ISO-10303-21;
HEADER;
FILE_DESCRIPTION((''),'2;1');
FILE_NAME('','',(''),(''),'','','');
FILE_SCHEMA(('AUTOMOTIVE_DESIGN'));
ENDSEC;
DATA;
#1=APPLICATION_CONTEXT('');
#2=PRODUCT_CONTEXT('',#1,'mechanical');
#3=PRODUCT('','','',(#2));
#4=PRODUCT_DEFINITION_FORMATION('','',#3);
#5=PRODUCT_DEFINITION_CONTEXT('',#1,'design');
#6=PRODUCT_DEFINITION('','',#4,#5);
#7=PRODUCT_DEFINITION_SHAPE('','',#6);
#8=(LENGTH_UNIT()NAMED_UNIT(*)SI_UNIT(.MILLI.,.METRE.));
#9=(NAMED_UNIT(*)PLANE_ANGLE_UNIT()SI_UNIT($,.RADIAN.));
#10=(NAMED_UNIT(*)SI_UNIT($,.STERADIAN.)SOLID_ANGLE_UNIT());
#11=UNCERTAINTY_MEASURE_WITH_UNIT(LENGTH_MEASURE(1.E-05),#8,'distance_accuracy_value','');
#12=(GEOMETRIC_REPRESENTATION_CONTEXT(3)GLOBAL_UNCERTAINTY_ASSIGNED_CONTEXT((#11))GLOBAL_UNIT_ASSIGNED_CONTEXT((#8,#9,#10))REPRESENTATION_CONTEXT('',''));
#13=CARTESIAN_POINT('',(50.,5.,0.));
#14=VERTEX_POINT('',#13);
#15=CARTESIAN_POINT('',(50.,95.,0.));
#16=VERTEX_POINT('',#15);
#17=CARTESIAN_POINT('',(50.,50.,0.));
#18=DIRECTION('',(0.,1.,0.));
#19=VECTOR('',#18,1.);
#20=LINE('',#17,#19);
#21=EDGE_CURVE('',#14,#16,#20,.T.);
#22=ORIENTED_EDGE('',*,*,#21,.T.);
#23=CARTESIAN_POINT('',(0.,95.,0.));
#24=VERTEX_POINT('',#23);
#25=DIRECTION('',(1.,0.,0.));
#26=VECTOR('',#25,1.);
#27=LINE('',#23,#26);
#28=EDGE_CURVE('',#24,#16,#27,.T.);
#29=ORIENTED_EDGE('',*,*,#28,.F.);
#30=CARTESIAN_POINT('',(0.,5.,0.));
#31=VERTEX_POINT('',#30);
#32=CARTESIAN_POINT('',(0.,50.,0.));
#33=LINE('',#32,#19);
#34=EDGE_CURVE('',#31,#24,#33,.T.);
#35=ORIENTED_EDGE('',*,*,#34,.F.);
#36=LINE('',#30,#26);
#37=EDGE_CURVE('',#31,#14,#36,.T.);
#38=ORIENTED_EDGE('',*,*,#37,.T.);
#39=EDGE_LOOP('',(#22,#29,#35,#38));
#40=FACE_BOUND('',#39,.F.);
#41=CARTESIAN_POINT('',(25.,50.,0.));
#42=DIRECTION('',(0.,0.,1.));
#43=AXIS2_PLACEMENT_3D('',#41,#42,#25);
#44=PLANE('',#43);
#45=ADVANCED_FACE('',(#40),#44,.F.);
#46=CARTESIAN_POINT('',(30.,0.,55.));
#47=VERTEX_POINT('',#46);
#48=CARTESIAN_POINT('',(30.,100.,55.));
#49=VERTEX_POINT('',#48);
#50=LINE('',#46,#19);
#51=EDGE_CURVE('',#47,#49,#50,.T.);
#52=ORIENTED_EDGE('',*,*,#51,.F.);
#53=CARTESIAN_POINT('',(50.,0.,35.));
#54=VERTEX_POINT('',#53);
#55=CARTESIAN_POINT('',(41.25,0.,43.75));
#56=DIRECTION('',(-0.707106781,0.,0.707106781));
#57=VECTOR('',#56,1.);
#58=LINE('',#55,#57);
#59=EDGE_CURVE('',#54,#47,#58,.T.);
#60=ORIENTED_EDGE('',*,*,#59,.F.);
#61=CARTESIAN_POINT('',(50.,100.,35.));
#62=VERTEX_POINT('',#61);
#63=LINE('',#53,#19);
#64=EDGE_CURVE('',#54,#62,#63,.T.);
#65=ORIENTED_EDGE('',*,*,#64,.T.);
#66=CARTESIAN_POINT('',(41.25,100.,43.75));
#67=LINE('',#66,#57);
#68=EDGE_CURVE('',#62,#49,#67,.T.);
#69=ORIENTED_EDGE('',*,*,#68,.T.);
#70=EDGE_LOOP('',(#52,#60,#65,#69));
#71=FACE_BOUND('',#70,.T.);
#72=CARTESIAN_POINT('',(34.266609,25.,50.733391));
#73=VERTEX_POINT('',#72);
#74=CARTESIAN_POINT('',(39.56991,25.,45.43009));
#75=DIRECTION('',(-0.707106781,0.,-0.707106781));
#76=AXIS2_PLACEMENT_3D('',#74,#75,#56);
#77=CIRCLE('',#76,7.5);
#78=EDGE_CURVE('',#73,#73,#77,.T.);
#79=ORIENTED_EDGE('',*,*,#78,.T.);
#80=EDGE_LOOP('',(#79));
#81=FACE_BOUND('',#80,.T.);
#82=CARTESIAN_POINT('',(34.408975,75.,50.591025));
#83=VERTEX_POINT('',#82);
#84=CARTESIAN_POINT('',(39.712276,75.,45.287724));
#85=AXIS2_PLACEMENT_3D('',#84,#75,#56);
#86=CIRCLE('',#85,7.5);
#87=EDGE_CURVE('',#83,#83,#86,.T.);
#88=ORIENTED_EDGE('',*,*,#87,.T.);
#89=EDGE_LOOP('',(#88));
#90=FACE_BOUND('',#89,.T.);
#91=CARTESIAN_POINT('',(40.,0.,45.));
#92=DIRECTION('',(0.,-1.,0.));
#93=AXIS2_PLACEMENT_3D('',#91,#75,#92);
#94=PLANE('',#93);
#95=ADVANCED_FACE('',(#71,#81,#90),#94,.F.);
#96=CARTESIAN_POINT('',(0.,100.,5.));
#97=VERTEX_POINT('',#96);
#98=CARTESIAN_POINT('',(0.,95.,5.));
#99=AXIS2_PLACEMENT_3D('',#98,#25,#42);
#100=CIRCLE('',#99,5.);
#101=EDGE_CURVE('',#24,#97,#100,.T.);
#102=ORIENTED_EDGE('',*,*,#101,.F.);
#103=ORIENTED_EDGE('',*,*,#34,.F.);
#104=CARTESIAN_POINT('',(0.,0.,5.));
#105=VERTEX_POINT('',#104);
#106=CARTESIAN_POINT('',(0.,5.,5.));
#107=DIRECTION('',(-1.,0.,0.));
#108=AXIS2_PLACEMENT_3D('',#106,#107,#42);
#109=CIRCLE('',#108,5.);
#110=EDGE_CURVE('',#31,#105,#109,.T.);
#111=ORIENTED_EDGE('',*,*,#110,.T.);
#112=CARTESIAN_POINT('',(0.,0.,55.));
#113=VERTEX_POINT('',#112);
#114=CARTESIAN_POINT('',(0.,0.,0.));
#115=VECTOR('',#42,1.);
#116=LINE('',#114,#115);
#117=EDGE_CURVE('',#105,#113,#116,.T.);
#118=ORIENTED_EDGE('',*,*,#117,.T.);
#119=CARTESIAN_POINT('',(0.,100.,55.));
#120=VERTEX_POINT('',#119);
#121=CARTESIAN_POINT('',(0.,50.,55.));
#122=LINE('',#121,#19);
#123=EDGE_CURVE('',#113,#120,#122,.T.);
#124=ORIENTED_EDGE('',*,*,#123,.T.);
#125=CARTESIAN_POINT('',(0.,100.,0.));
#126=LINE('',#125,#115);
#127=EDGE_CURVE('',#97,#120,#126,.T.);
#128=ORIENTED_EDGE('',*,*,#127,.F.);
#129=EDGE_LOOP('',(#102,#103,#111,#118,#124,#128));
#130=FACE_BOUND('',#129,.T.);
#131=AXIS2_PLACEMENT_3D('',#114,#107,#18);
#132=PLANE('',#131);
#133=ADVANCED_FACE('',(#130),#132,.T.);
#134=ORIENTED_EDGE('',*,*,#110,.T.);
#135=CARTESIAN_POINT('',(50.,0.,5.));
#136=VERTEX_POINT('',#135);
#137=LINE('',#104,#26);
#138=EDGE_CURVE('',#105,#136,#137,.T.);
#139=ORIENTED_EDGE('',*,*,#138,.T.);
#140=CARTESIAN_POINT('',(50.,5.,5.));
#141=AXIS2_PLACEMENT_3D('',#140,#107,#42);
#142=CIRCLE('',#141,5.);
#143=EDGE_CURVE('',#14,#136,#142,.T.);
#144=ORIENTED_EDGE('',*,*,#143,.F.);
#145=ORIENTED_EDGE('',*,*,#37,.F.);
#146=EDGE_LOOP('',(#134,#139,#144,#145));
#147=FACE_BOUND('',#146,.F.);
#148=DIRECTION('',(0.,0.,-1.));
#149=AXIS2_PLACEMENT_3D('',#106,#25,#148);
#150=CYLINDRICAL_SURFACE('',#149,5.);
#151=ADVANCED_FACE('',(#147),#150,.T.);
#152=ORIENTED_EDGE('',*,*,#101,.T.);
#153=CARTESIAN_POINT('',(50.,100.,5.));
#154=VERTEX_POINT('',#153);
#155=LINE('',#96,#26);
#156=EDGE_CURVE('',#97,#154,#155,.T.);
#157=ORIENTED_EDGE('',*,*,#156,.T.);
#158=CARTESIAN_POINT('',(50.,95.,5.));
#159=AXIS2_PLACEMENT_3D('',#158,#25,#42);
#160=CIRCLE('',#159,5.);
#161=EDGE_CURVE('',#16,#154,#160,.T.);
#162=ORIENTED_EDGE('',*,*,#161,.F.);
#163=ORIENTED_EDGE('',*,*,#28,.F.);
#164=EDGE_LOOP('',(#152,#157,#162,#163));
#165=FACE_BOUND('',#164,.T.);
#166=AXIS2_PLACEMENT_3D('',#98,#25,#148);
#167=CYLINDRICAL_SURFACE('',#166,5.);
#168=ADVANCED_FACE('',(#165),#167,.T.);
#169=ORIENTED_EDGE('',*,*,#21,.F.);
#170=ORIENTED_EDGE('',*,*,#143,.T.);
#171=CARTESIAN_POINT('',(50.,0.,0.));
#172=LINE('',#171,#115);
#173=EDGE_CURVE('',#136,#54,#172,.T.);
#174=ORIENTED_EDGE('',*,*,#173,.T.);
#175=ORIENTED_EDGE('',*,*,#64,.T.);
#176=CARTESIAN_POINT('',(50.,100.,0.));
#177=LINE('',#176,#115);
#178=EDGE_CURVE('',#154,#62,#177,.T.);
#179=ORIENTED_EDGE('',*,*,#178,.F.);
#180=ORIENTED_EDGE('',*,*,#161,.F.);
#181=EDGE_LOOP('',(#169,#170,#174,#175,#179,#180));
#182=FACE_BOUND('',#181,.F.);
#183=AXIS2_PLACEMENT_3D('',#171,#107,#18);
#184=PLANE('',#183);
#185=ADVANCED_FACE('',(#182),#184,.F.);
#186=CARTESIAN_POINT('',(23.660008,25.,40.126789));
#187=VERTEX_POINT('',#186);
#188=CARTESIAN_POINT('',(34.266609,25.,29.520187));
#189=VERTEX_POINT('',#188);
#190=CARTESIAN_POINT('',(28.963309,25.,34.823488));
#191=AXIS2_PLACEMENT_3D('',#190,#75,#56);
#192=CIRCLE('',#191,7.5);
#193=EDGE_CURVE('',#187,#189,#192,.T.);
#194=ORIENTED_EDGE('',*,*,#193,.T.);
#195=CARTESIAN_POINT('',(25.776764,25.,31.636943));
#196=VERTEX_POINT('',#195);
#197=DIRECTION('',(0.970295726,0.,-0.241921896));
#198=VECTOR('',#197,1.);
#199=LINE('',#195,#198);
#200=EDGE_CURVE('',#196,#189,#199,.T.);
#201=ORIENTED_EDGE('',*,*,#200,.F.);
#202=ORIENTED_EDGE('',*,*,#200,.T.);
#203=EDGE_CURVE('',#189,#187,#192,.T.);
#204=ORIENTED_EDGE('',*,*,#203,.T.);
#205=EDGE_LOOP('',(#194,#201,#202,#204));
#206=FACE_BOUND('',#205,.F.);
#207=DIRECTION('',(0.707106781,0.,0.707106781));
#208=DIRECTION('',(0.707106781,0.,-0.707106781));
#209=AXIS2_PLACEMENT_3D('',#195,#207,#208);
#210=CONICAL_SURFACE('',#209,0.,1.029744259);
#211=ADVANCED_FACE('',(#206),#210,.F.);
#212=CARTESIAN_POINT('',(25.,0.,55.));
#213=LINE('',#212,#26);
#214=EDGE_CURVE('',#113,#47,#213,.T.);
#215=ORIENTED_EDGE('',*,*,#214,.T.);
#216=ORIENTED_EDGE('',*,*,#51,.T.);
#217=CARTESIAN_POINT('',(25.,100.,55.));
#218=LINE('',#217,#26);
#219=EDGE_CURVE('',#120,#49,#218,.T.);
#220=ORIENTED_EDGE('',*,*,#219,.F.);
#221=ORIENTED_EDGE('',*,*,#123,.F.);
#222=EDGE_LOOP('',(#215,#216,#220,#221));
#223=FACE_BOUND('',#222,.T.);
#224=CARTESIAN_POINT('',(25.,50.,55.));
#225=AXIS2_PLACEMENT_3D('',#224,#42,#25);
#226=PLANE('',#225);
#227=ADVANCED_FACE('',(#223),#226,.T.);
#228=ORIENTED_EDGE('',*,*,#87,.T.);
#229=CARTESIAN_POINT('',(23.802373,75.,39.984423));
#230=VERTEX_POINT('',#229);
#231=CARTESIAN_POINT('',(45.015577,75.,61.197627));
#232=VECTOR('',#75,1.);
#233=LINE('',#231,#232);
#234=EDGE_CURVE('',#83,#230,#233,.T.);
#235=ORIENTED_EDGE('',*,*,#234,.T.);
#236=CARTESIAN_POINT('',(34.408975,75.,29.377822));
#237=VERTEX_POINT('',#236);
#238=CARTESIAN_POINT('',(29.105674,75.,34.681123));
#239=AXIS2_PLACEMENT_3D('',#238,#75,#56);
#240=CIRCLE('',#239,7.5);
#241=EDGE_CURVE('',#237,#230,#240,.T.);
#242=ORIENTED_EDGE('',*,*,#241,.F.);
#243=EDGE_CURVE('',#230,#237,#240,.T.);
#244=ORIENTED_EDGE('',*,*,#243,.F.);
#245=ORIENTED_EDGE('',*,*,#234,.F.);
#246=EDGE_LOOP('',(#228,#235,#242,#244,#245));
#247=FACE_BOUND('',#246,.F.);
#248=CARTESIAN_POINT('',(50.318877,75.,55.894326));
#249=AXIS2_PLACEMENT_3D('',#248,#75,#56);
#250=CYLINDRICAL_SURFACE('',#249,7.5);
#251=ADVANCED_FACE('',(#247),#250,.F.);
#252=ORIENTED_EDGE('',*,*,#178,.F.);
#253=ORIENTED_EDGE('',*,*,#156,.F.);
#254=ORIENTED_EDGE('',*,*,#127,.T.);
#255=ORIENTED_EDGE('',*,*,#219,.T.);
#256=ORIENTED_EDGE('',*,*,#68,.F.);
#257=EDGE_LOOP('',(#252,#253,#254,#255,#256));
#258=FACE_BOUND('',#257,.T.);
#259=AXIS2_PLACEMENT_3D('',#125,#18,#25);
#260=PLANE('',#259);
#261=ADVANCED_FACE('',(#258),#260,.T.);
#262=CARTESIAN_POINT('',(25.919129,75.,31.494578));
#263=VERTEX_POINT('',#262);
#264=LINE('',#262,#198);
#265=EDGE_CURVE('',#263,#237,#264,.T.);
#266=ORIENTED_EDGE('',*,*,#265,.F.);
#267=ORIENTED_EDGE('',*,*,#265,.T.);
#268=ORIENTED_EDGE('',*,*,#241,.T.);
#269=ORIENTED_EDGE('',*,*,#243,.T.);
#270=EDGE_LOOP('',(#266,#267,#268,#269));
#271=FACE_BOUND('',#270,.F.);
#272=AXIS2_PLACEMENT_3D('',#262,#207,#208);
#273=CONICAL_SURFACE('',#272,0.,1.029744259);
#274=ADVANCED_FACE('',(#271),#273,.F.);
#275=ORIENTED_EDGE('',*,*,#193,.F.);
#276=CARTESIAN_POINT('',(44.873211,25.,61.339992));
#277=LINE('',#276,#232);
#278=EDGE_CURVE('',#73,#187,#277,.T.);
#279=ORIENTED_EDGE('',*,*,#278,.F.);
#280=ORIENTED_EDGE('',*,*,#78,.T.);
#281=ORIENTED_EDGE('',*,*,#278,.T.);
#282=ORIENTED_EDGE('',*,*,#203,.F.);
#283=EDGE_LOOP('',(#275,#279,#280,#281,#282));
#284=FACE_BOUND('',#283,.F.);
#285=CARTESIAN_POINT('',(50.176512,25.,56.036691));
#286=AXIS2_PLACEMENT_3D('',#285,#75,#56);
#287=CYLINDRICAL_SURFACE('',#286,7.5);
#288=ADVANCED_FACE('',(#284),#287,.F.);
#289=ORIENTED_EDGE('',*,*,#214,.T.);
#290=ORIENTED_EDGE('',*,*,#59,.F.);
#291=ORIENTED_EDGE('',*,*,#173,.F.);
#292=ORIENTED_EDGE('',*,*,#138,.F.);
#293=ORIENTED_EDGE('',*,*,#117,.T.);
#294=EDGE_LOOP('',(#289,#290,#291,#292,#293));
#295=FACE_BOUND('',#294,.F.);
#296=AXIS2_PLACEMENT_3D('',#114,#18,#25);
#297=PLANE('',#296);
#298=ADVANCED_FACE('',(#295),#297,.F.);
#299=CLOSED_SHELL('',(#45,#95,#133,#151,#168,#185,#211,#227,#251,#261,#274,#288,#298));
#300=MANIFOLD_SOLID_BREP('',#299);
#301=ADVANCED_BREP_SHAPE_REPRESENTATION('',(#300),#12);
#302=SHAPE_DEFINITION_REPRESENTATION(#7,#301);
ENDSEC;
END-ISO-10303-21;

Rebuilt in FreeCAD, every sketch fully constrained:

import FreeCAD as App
import Part
import Sketcher
from FreeCAD import Vector


def edges_at(feature, points):
    """Names of the edges that pass closest to the given points."""
    edges = feature.Shape.Edges
    near = lambda p: min(range(len(edges)), key=lambda i: edges[i].distToShape(Part.Vertex(*p))[0])
    return sorted({f"Edge{near(p) + 1}" for p in points})


def add_polygon(sketch, points):
    """Adds a closed chain of lines whose ends are joined by coincident constraints."""
    first, n = sketch.GeometryCount, len(points)
    for a, b in zip(points, points[1:] + points[:1]):
        sketch.addGeometry(Part.LineSegment(App.Vector(*a, 0), App.Vector(*b, 0)), False)
    for i in range(n):
        sketch.addConstraint(Sketcher.Constraint("Coincident", first + i, 2, first + (i + 1) % n, 1))

doc = App.newDocument("Part")
body = doc.addObject("PartDesign::Body", "Body")

# Sketch on XY plane
sketch1 = body.newObject("Sketcher::SketchObject", "Sketch")
sketch1.AttachmentSupport = (doc.getObject("XY_Plane"), [""])
sketch1.MapMode = "FlatFace"
add_polygon(sketch1, [(0, 100), (0, 0), (50, 0), (50, 100)])  # lines 0-3
sketch1.addConstraint([
    Sketcher.Constraint("Vertical", 0),
    Sketcher.Constraint("Horizontal", 1),
    Sketcher.Constraint("Vertical", 2),
    Sketcher.Constraint("Horizontal", 3),
    Sketcher.Constraint("Coincident", 0, 2, -1, 1),
    Sketcher.Constraint("DistanceX", 1, 1, 1, 2, 50.0),
    Sketcher.Constraint("DistanceY", 0, 2, 0, 1, 100.0),
])
pad1 = body.newObject("PartDesign::Pad", "Pad")
pad1.Profile = sketch1
pad1.Length = 55
doc.recompute()

chamfer = body.newObject("PartDesign::Chamfer", "Chamfer")
chamfer.Base = (pad1, edges_at(pad1, [(50, 50, 55)]))
chamfer.Size = 20

# Sketch on an angled plane
sketch2 = body.newObject("Sketcher::SketchObject", "Sketch001")
sketch2.Placement = App.Placement(Vector(42.5, 0, 42.5), App.Rotation(Vector(0.707106781, 0, -0.707106781), Vector(0, 0.999999999, 0), Vector(0.707106781, 0, 0.707106781), "ZXY"))
sketch2.addGeometry(Part.Circle(Vector(-4, 25, 0), Vector(0, 0, 1), 8), False)
sketch2.addConstraint([
    Sketcher.Constraint("Diameter", 0, 15.0),
    Sketcher.Constraint("DistanceY", -1, 1, 0, 3, 25.0),
    Sketcher.Constraint("DistanceX", 0, 3, -1, 1, 4.143773),
])
doc.recompute()
hole = body.newObject("PartDesign::Hole", "Hole")
hole.Profile = sketch2
hole.ThreadType = "None"
hole.Diameter = 15
hole.DepthType = "Dimension"
hole.Depth = 15
hole.DrillPoint = "Angled"
hole.DrillPointAngle = 118

# Sketch on an angled plane
sketch3 = body.newObject("Sketcher::SketchObject", "Sketch002")
sketch3.Placement = App.Placement(Vector(42.5, 0, 42.5), App.Rotation(Vector(0.707106781, 0, -0.707106781), Vector(0, 0.999999999, 0), Vector(0.707106781, 0, 0.707106781), "ZXY"))
sketch3.addGeometry(Part.Circle(Vector(-4, 75, 0), Vector(0, 0, 1), 8), False)
sketch3.addConstraint([
    Sketcher.Constraint("Diameter", 0, 15.0),
    Sketcher.Constraint("DistanceY", -1, 1, 0, 3, 75.0),
    Sketcher.Constraint("DistanceX", 0, 3, -1, 1, 3.942437),
])
doc.recompute()
hole2 = body.newObject("PartDesign::Hole", "Hole001")
hole2.Profile = sketch3
hole2.ThreadType = "None"
hole2.Diameter = 15
hole2.DepthType = "Dimension"
hole2.Depth = 15
hole2.DrillPoint = "Angled"
hole2.DrillPointAngle = 118
doc.recompute()

fillet = body.newObject("PartDesign::Fillet", "Fillet")
fillet.Base = (hole2, edges_at(hole2, [(25, 100, 0)]))
fillet.Radius = 5
doc.recompute()

fillet2 = body.newObject("PartDesign::Fillet", "Fillet001")
fillet2.Base = (fillet, edges_at(fillet, [(25, 0, 0)]))
fillet2.Radius = 5

doc.recompute()
